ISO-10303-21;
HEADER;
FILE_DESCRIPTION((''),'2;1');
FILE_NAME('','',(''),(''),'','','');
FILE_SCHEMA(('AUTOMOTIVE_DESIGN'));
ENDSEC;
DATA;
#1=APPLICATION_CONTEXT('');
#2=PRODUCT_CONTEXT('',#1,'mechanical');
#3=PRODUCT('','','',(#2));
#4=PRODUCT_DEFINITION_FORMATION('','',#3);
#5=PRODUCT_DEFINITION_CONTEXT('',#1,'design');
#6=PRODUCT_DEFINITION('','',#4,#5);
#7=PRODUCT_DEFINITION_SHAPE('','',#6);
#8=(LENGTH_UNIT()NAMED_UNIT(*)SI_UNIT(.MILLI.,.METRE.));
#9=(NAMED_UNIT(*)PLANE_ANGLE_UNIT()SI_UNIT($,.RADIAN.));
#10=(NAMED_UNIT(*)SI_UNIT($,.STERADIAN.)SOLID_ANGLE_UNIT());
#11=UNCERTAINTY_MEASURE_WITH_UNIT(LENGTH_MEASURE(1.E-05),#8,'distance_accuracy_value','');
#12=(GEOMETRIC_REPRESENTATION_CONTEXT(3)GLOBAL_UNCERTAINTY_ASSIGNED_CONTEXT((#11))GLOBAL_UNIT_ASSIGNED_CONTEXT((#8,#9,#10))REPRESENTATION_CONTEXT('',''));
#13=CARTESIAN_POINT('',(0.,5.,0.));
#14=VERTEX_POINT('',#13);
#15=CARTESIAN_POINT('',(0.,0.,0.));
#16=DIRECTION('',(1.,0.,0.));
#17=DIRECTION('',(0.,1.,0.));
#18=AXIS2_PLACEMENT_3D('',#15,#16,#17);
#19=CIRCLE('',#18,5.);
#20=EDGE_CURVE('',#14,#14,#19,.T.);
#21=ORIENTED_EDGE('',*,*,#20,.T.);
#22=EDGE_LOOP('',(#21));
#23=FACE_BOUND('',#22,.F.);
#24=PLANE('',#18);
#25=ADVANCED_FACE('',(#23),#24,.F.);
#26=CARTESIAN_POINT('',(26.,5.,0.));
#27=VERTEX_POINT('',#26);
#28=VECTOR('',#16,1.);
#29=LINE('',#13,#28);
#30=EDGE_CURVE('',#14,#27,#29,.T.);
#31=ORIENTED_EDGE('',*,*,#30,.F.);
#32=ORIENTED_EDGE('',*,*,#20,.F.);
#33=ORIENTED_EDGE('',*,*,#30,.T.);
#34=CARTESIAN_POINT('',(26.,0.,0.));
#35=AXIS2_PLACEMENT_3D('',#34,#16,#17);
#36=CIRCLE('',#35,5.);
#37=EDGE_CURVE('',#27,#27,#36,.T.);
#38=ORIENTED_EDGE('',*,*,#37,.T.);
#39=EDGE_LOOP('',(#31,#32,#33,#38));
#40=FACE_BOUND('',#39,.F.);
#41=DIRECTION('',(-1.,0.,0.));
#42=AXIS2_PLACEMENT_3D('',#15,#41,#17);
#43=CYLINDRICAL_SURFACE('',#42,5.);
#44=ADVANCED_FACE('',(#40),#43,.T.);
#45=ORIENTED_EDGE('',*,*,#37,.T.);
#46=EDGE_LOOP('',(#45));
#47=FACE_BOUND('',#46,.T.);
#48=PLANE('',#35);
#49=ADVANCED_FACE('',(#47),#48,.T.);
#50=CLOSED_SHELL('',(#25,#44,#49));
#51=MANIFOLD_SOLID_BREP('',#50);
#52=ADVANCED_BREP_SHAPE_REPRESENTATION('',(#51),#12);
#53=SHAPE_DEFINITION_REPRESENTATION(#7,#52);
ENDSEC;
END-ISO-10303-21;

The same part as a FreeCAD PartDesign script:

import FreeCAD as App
import Part
import Sketcher

doc = App.newDocument("Part")
body = doc.addObject("PartDesign::Body", "Body")

# Sketch on YZ plane
sketch1 = body.newObject("Sketcher::SketchObject", "Sketch")
sketch1.AttachmentSupport = (doc.getObject("YZ_Plane"), [""])
sketch1.MapMode = "FlatFace"
sketch1.addGeometry(Part.Circle(App.Vector(0, 0, 0), App.Vector(0, 0, 1), 5), False)
sketch1.addConstraint([
    Sketcher.Constraint("Coincident", 0, 3, -1, 1),
    Sketcher.Constraint("Diameter", 0, 10.0),
])
pad1 = body.newObject("PartDesign::Pad", "Pad")
pad1.Profile = sketch1
pad1.Length = 26

doc.recompute()
